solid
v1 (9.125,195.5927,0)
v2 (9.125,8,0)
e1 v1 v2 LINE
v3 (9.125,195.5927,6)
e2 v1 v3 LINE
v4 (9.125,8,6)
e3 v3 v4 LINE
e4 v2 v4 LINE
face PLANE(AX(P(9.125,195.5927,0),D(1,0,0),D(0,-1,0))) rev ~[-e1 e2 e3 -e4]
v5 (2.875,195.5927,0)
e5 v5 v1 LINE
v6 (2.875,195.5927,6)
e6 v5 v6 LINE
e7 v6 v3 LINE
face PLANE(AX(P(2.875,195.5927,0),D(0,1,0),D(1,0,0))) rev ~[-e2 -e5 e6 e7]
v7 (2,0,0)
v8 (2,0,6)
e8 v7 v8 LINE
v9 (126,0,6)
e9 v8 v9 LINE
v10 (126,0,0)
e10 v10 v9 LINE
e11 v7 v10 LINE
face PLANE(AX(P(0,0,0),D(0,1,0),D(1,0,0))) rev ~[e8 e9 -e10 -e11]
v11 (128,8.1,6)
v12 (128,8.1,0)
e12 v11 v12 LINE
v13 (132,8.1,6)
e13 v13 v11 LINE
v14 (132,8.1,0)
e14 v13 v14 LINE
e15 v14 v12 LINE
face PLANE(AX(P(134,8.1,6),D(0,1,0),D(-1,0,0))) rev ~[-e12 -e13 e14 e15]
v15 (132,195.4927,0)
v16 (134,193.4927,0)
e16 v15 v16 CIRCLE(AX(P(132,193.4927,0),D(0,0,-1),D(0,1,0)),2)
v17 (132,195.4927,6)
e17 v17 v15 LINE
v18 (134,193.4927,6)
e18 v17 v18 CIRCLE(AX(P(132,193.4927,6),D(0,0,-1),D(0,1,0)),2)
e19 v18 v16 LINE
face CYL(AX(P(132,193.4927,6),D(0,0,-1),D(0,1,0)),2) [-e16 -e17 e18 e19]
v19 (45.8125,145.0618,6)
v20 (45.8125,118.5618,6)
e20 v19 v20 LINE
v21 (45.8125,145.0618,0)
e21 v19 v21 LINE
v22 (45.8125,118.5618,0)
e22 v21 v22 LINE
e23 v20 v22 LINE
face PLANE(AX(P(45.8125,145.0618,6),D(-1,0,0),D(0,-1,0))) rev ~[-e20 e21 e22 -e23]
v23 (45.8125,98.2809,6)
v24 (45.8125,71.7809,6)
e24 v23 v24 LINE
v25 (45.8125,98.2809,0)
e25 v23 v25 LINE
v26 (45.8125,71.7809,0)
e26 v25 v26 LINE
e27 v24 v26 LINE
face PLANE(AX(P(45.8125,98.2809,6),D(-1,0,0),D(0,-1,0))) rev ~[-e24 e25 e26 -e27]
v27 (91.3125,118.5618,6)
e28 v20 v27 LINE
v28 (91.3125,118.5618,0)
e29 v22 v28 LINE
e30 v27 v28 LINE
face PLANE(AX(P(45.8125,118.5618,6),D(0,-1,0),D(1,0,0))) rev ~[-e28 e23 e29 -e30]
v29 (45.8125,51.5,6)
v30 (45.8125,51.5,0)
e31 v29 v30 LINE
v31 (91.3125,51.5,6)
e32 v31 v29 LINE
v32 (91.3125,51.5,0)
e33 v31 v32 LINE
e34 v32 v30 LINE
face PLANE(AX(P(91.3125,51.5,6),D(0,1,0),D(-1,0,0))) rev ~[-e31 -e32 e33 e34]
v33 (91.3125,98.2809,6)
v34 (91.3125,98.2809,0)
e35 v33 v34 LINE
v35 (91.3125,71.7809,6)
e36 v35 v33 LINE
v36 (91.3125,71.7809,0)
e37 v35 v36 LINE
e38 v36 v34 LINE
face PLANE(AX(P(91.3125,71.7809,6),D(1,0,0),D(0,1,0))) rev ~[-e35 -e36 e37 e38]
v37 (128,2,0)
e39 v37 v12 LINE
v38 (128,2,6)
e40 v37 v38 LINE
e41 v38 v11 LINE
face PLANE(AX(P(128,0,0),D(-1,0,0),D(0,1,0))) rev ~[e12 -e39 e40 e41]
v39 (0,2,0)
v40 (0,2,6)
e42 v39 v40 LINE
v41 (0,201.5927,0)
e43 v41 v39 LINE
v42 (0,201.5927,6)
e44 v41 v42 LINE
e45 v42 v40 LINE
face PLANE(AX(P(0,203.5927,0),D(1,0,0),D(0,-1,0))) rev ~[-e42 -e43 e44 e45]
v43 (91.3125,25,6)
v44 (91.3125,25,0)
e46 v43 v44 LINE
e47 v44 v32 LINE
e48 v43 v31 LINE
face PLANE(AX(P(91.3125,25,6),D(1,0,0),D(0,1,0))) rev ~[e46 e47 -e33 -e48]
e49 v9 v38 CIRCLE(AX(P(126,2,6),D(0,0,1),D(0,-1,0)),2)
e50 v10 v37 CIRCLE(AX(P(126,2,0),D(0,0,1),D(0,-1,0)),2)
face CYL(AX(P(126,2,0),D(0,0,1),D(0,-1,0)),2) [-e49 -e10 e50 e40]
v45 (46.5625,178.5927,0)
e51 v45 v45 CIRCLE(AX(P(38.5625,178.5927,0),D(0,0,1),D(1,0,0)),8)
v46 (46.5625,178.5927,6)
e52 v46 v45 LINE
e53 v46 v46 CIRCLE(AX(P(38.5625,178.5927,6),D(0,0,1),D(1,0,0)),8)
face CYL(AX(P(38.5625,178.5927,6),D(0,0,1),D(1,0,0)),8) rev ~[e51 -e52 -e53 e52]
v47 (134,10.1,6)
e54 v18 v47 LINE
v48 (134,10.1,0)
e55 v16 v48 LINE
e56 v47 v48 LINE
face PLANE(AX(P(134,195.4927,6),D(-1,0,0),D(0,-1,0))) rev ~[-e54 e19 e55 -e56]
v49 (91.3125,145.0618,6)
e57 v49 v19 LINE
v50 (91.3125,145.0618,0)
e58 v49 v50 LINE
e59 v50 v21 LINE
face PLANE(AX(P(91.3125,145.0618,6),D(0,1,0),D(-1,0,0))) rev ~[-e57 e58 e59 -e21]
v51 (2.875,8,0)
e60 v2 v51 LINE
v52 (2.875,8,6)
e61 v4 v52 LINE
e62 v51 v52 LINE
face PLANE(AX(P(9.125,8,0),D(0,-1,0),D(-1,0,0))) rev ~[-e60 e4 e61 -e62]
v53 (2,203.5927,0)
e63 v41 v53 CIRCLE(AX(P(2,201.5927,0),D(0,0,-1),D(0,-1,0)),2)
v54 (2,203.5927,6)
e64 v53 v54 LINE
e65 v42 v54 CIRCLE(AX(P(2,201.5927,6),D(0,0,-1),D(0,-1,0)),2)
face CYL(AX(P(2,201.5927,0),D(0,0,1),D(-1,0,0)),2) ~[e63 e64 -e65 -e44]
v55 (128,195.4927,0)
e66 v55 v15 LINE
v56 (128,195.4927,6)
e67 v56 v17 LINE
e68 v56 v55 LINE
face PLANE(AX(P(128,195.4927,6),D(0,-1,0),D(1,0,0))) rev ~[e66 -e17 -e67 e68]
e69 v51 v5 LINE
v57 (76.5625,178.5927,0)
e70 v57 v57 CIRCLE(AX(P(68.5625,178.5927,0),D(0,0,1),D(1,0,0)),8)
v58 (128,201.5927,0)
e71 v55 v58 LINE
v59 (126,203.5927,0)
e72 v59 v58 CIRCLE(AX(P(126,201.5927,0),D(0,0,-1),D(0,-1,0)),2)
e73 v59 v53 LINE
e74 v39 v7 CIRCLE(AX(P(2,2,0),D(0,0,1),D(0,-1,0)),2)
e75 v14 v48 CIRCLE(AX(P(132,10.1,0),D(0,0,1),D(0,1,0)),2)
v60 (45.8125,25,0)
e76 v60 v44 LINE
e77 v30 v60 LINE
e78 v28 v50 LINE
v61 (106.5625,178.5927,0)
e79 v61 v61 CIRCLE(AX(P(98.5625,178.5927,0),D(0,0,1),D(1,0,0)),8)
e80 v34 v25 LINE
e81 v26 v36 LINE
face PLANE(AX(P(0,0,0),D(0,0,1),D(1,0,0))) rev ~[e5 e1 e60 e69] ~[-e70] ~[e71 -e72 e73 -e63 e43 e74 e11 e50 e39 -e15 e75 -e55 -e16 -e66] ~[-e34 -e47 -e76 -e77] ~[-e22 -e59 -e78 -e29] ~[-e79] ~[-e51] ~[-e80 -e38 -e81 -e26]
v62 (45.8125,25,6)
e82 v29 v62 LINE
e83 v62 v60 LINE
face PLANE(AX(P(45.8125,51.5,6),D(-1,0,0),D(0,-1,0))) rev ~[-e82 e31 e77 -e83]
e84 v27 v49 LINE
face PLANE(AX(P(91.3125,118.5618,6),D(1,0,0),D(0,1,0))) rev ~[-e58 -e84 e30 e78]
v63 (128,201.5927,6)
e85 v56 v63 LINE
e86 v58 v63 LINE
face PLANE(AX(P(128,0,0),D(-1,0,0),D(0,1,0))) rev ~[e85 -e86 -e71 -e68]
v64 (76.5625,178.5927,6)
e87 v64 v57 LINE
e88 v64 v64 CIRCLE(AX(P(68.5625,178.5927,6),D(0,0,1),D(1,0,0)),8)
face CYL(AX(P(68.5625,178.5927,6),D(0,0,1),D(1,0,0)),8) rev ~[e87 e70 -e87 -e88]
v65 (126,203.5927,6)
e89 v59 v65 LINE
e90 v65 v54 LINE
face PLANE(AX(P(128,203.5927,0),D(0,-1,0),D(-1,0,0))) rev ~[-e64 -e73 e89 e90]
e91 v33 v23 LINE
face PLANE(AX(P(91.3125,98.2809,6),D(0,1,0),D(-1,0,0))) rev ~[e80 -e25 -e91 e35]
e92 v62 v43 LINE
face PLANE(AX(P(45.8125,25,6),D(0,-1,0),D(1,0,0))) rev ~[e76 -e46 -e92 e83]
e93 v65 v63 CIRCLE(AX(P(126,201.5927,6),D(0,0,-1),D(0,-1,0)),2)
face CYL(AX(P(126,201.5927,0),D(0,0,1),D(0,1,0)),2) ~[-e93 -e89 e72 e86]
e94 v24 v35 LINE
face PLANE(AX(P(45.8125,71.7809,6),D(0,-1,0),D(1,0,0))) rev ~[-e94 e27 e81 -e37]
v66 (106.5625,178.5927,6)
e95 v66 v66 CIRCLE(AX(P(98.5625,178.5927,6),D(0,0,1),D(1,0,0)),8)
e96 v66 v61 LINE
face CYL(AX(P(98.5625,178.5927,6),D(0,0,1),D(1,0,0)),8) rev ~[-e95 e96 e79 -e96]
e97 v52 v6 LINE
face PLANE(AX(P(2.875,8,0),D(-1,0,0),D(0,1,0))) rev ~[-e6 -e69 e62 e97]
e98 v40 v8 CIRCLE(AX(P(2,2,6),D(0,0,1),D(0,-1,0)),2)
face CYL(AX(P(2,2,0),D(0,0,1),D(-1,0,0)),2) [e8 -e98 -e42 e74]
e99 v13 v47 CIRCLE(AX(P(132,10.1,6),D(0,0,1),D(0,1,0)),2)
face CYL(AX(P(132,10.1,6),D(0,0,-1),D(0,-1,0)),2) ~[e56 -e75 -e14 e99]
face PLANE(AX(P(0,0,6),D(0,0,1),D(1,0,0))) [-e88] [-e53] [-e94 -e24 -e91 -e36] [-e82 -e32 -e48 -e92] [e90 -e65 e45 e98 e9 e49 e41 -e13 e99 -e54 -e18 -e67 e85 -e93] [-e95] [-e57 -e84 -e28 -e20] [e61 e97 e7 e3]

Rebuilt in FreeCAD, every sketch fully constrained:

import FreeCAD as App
import Part
import Sketcher
from FreeCAD import Vector
Q = App.Units.Quantity


def edges_at(feature, points):
    """Names of the edges that pass closest to the given points."""
    edges = feature.Shape.Edges
    near = lambda p: min(range(len(edges)), key=lambda i: edges[i].distToShape(Part.Vertex(*p))[0])
    return sorted({f"Edge{near(p) + 1}" for p in points})

doc = App.newDocument("Part")
body = doc.addObject("PartDesign::Body", "Body")

# Sketch on XY plane
sketch1 = body.newObject("Sketcher::SketchObject", "Sketch")
sketch1.AttachmentSupport = (doc.getObject("XY_Plane"), [""])
sketch1.MapMode = "FlatFace"
sketch1.addGeometry([
    Part.LineSegment(Vector(0, 204, 0), Vector(0, 0, 0)),  # 0
    Part.LineSegment(Vector(0, 0, 0), Vector(128, 0, 0)),  # 1
    Part.LineSegment(Vector(128, 0, 0), Vector(128, 204, 0)),  # 2
    Part.LineSegment(Vector(128, 204, 0), Vector(0, 204, 0)),  # 3
    Part.LineSegment(Vector(3, 8, 0), Vector(3, 196, 0)),  # 4
    Part.LineSegment(Vector(3, 196, 0), Vector(9, 196, 0)),  # 5
    Part.LineSegment(Vector(9, 196, 0), Vector(9, 8, 0)),  # 6
    Part.LineSegment(Vector(9, 8, 0), Vector(3, 8, 0)),  # 7
], False)
sketch1.addConstraint([
    Sketcher.Constraint("Coincident", 0, 2, 1, 1),
    Sketcher.Constraint("Coincident", 1, 2, 2, 1),
    Sketcher.Constraint("Coincident", 2, 2, 3, 1),
    Sketcher.Constraint("Coincident", 3, 2, 0, 1),
    Sketcher.Constraint("Coincident", 4, 2, 5, 1),
    Sketcher.Constraint("Coincident", 5, 2, 6, 1),
    Sketcher.Constraint("Coincident", 6, 2, 7, 1),
    Sketcher.Constraint("Coincident", 7, 2, 4, 1),
    Sketcher.Constraint("Vertical", 0),
    Sketcher.Constraint("Horizontal", 1),
    Sketcher.Constraint("Vertical", 2),
    Sketcher.Constraint("Horizontal", 3),
    Sketcher.Constraint("Vertical", 4),
    Sketcher.Constraint("Horizontal", 5),
    Sketcher.Constraint("Vertical", 6),
    Sketcher.Constraint("Horizontal", 7),
    Sketcher.Constraint("Coincident", 0, 2, -1, 1),
    Sketcher.Constraint("DistanceX", 1, 1, 1, 2, Q("128 mm")),
    Sketcher.Constraint("DistanceY", -1, 1, 6, 2, Q("8 mm")),
    Sketcher.Constraint("DistanceY", 4, 2, 3, 2, Q("8 mm")),
    Sketcher.Constraint("DistanceX", 5, 1, 5, 2, Q("6.25 mm")),
    Sketcher.Constraint("DistanceX", -1, 1, 4, 2, Q("2.875 mm")),
    Sketcher.Constraint("DistanceY", 0, 2, 0, 1, Q("203.5927 mm")),
])
pad1 = body.newObject("PartDesign::Pad", "Pad")
pad1.Profile = sketch1
pad1.Length = 6

# Sketch on XY plane
sketch2 = body.newObject("Sketcher::SketchObject", "Sketch001")
sketch2.AttachmentSupport = (doc.getObject("XY_Plane"), [""])
sketch2.MapMode = "FlatFace"
sketch2.AttachmentOffset = App.Placement(Vector(0, 0, 6), App.Rotation())
sketch2.addGeometry([
    Part.LineSegment(Vector(128, 195, 0), Vector(128, 8, 0)),
    Part.LineSegment(Vector(128, 8, 0), Vector(134, 8, 0)),
    Part.LineSegment(Vector(134, 8, 0), Vector(134, 195, 0)),
    Part.LineSegment(Vector(134, 195, 0), Vector(128, 195, 0)),
], False)
sketch2.addConstraint([
    Sketcher.Constraint("Coincident", 0, 2, 1, 1),
    Sketcher.Constraint("Coincident", 1, 2, 2, 1),
    Sketcher.Constraint("Coincident", 2, 2, 3, 1),
    Sketcher.Constraint("Coincident", 3, 2, 0, 1),
    Sketcher.Constraint("Vertical", 0),
    Sketcher.Constraint("Horizontal", 1),
    Sketcher.Constraint("Vertical", 2),
    Sketcher.Constraint("Horizontal", 3),
    Sketcher.Constraint("DistanceX", 1, 1, 1, 2, Q("6 mm")),
    Sketcher.Constraint("DistanceY", -1, 1, 0, 2, Q("8.1 mm")),
    Sketcher.Constraint("DistanceX", -1, 1, 0, 2, Q("128 mm")),
    Sketcher.Constraint("DistanceY", 0, 2, 0, 1, Q("187.3927 mm")),
])
pad2 = body.newObject("PartDesign::Pad", "Pad001")
pad2.Profile = sketch2
pad2.Length = 6
pad2.Reversed = True
doc.recompute()

fillet = body.newObject("PartDesign::Fillet", "Fillet")
fillet.Base = (pad2, edges_at(pad2, [
    (134, 195.493, 3),
    (128, 203.593, 3),
    (0, 203.593, 3),
    (128, 0, 3),
    (134, 8.1, 3),
    (0, 0, 3),
]))
fillet.Radius = 2

# Sketch on XY plane
sketch3 = body.newObject("Sketcher::SketchObject", "Sketch002")
sketch3.AttachmentSupport = (doc.getObject("XY_Plane"), [""])
sketch3.MapMode = "FlatFace"
sketch3.AttachmentOffset = App.Placement(Vector(0, 0, 6), App.Rotation())
sketch3.addGeometry([
    Part.Circle(Vector(39, 179, 0), Vector(0, 0, 1), 8),  # 0
    Part.Circle(Vector(69, 179, 0), Vector(0, 0, 1), 8),  # 1
    Part.Circle(Vector(99, 179, 0), Vector(0, 0, 1), 8),  # 2
    Part.LineSegment(Vector(46, 145, 0), Vector(46, 119, 0)),  # 3
    Part.LineSegment(Vector(46, 119, 0), Vector(91, 119, 0)),  # 4
    Part.LineSegment(Vector(91, 119, 0), Vector(91, 145, 0)),  # 5
    Part.LineSegment(Vector(91, 145, 0), Vector(46, 145, 0)),  # 6
    Part.LineSegment(Vector(46, 98, 0), Vector(46, 72, 0)),  # 7
    Part.LineSegment(Vector(46, 72, 0), Vector(91, 72, 0)),  # 8
    Part.LineSegment(Vector(91, 72, 0), Vector(91, 98, 0)),  # 9
    Part.LineSegment(Vector(91, 98, 0), Vector(46, 98, 0)),  # 10
    Part.LineSegment(Vector(46, 52, 0), Vector(46, 25, 0)),  # 11
    Part.LineSegment(Vector(46, 25, 0), Vector(91, 25, 0)),  # 12
    Part.LineSegment(Vector(91, 25, 0), Vector(91, 52, 0)),  # 13
    Part.LineSegment(Vector(91, 52, 0), Vector(46, 52, 0)),  # 14
], False)
sketch3.addConstraint([
    Sketcher.Constraint("Coincident", 3, 2, 4, 1),
    Sketcher.Constraint("Coincident", 4, 2, 5, 1),
    Sketcher.Constraint("Coincident", 5, 2, 6, 1),
    Sketcher.Constraint("Coincident", 6, 2, 3, 1),
    Sketcher.Constraint("Coincident", 7, 2, 8, 1),
    Sketcher.Constraint("Coincident", 8, 2, 9, 1),
    Sketcher.Constraint("Coincident", 9, 2, 10, 1),
    Sketcher.Constraint("Coincident", 10, 2, 7, 1),
    Sketcher.Constraint("Coincident", 11, 2, 12, 1),
    Sketcher.Constraint("Coincident", 12, 2, 13, 1),
    Sketcher.Constraint("Coincident", 13, 2, 14, 1),
    Sketcher.Constraint("Coincident", 14, 2, 11, 1),
    Sketcher.Constraint("Vertical", 3),
    Sketcher.Constraint("Horizontal", 4),
    Sketcher.Constraint("Vertical", 5),
    Sketcher.Constraint("Horizontal", 6),
    Sketcher.Constraint("Vertical", 7),
    Sketcher.Constraint("Horizontal", 8),
    Sketcher.Constraint("Vertical", 9),
    Sketcher.Constraint("Horizontal", 10),
    Sketcher.Constraint("Vertical", 11),
    Sketcher.Constraint("Horizontal", 12),
    Sketcher.Constraint("Vertical", 13),
    Sketcher.Constraint("Horizontal", 14),
    Sketcher.Constraint("Equal", 0, 1),
    Sketcher.Constraint("Equal", 1, 2),
    Sketcher.Constraint("Horizontal", 0, 3, 1, 3),
    Sketcher.Constraint("Horizontal", 1, 3, 2, 3),
    Sketcher.Constraint("Vertical", 6, 2, 7, 2),
    Sketcher.Constraint("Vertical", 5, 2, 8, 2),
    Sketcher.Constraint("Vertical", 10, 2, 11, 2),
    Sketcher.Constraint("Vertical", 9, 2, 12, 2),
    Sketcher.Constraint("Equal", 5, 7),
    Sketcher.Constraint("Equal", 9, 11),
    Sketcher.Constraint("Diameter", 0, Q("16 mm")),
    Sketcher.Constraint("DistanceX", 4, 1, 4, 2, Q("45.5 mm")),
    Sketcher.Constraint("DistanceY", 3, 2, 3, 1, Q("26.5 mm")),
    Sketcher.Constraint("DistanceY", -1, 1, 11, 2, Q("25 mm")),
    Sketcher.Constraint("DistanceX", 0, 3, 1, 3, Q("30 mm")),
    Sketcher.Constraint("DistanceX", 1, 3, 2, 3, Q("30 mm")),
    Sketcher.Constraint("DistanceX", 0, 3, 3, 2, Q("7.25 mm")),
    Sketcher.Constraint("DistanceY", -1, 1, 7, 2, Q("71.781 mm")),
    Sketcher.Constraint("DistanceY", 3, 2, 0, 3, Q("60.031 mm")),
    Sketcher.Constraint("DistanceY", 7, 2, 3, 2, Q("46.781 mm")),
    Sketcher.Constraint("DistanceX", -1, 1, 0, 3, Q("38.5625 mm")),
])
pocket1 = body.newObject("PartDesign::Pocket", "Pocket")
pocket1.Profile = sketch3
pocket1.Length = 10

doc.recompute()
